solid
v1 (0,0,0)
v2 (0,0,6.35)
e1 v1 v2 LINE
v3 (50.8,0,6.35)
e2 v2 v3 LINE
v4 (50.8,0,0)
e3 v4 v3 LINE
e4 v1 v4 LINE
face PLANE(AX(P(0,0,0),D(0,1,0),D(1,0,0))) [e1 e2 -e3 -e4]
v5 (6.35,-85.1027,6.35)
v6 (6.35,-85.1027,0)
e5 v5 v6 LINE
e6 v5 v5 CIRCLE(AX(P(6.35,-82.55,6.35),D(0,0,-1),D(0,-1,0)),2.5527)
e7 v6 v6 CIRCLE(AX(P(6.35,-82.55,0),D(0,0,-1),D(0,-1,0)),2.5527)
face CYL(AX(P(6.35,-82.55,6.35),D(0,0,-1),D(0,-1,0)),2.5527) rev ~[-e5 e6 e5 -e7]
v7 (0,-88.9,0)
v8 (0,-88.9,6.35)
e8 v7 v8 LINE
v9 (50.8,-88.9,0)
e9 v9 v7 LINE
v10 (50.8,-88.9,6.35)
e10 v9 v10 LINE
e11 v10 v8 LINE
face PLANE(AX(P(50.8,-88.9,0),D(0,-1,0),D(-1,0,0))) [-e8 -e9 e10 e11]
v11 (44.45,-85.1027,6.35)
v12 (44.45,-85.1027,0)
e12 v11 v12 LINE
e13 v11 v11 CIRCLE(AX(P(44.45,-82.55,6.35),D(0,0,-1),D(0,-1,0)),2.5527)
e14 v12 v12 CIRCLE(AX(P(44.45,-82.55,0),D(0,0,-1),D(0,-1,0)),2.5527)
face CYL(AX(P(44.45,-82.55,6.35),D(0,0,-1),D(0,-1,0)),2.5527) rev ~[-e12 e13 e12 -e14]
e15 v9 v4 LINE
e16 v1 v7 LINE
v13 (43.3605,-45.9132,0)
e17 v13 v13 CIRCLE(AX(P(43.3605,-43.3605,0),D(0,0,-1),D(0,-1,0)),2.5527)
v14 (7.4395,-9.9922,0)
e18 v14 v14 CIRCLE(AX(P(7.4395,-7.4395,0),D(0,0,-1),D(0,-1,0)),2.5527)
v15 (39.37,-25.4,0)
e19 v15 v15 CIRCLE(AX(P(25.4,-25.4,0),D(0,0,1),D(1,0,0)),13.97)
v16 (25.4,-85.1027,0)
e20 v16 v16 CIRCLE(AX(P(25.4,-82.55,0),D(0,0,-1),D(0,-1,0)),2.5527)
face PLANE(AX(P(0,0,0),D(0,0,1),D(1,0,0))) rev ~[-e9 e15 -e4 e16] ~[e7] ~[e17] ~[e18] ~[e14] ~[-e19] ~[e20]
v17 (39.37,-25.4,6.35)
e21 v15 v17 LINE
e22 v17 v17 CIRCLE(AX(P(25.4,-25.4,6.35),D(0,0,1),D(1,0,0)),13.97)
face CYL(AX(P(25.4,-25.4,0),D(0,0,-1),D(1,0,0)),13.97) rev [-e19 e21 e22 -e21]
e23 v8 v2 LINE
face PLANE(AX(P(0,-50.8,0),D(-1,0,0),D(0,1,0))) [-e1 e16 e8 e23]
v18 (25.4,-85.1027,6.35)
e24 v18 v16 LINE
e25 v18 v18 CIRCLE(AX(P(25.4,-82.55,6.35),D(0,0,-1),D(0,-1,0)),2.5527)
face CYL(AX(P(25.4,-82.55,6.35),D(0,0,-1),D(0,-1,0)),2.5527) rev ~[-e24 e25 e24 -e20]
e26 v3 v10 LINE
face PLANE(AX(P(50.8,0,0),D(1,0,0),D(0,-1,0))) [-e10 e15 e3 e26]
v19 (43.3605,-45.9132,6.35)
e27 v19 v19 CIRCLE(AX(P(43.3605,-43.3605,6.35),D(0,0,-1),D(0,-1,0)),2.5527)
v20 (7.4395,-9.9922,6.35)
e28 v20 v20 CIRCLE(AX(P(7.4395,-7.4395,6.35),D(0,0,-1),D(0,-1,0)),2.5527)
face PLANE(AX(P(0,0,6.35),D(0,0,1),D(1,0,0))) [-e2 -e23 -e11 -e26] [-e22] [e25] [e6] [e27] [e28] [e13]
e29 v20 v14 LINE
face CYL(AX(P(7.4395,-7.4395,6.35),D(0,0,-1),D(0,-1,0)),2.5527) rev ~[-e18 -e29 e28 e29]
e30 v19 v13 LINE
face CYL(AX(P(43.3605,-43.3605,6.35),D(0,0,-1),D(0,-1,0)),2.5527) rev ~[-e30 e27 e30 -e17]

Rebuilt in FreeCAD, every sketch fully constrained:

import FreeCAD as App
import Part
import Sketcher

V = App.Vector
Q = App.Units.Quantity

doc = App.newDocument("Part")
body = doc.addObject("PartDesign::Body", "Body")

sketch1 = body.newObject("Sketcher::SketchObject", "Sketch")
sketch1.AttachmentSupport = (doc.getObject("XY_Plane"), [""])
sketch1.MapMode = "FlatFace"
sketch1.addGeometry(Part.LineSegment(V(51, 0, 0), V(0, 0, 0)), False)
sketch1.addGeometry(Part.LineSegment(V(0, 0, 0), V(0, -89, 0)), False)
sketch1.addGeometry(Part.LineSegment(V(0, -89, 0), V(51, -89, 0)), False)
sketch1.addGeometry(Part.LineSegment(V(51, -89, 0), V(51, 0, 0)), False)
sketch1.addGeometry(Part.Circle(V(25, -25, 0), V(0, 0, 1), 14), False)
sketch1.addConstraint(Sketcher.Constraint("Coincident", 0, 2, 1, 1))
sketch1.addConstraint(Sketcher.Constraint("Coincident", 1, 2, 2, 1))
sketch1.addConstraint(Sketcher.Constraint("Coincident", 2, 2, 3, 1))
sketch1.addConstraint(Sketcher.Constraint("Coincident", 3, 2, 0, 1))
sketch1.addConstraint(Sketcher.Constraint("Horizontal", 0))
sketch1.addConstraint(Sketcher.Constraint("Vertical", 1))
sketch1.addConstraint(Sketcher.Constraint("Horizontal", 2))
sketch1.addConstraint(Sketcher.Constraint("Vertical", 3))
sketch1.addConstraint(Sketcher.Constraint("Coincident", 0, 2, -1, 1))
sketch1.addConstraint(Sketcher.Constraint("Diameter", 4, Q("1.1 in")))
sketch1.addConstraint(Sketcher.Constraint("DistanceX", 0, 2, 0, 1, Q("2 in")))
sketch1.addConstraint(Sketcher.Constraint("DistanceY", 1, 2, 1, 1, Q("3.5 in")))
sketch1.addConstraint(Sketcher.Constraint("DistanceX", -1, 1, 4, 3, Q("1 in")))
sketch1.addConstraint(Sketcher.Constraint("DistanceY", 4, 3, -1, 1, Q("1 in")))
pad1 = body.newObject("PartDesign::Pad", "Pad")
pad1.Profile = sketch1
pad1.Length = Q("0.25 in")

sketch2 = body.newObject("Sketcher::SketchObject", "Sketch001")
sketch2.AttachmentSupport = (doc.getObject("XY_Plane"), [""])
sketch2.MapMode = "FlatFace"
sketch2.AttachmentOffset = App.Placement(V(0, 0, 0.25 * 25.4), App.Rotation())
sketch2.addGeometry(Part.Circle(V(7.4, -7.4, 0), V(0, 0, 1), 2.6), False)
sketch2.addGeometry(Part.Circle(V(43.4, -43.4, 0), V(0, 0, 1), 2.6), False)
sketch2.addConstraint(Sketcher.Constraint("Equal", 0, 1))
sketch2.addConstraint(Sketcher.Constraint("Diameter", 0, Q("0.201 in")))
sketch2.addConstraint(Sketcher.Constraint("DistanceX", -1, 1, 0, 3, Q("0.2929 in")))
sketch2.addConstraint(Sketcher.Constraint("DistanceY", 0, 3, -1, 1, Q("0.2929 in")))
sketch2.addConstraint(Sketcher.Constraint("DistanceX", -1, 1, 1, 3, Q("1.7071 in")))
sketch2.addConstraint(Sketcher.Constraint("DistanceY", 1, 3, -1, 1, Q("1.7071 in")))
doc.recompute()
hole = body.newObject("PartDesign::Hole", "Hole")
hole.Profile = sketch2
hole.ThreadType = "None"
hole.Diameter = Q("0.201 in")
hole.DepthType = "Dimension"
hole.Depth = Q("0.425 in")
hole.DrillPoint = "Flat"

sketch3 = body.newObject("Sketcher::SketchObject", "Sketch002")
sketch3.AttachmentSupport = (doc.getObject("XY_Plane"), [""])
sketch3.MapMode = "FlatFace"
sketch3.AttachmentOffset = App.Placement(V(0, 0, 0.25 * 25.4), App.Rotation())
sketch3.addGeometry(Part.Circle(V(25.4, -82.5, 0), V(0, 0, 1), 2.6), False)
sketch3.addGeometry(Part.Circle(V(6.3, -82.5, 0), V(0, 0, 1), 2.6), False)
sketch3.addGeometry(Part.Circle(V(44.5, -82.5, 0), V(0, 0, 1), 2.6), False)
sketch3.addConstraint(Sketcher.Constraint("Equal", 0, 1))
sketch3.addConstraint(Sketcher.Constraint("Equal", 1, 2))
sketch3.addConstraint(Sketcher.Constraint("Horizontal", 0, 3, 1, 3))
sketch3.addConstraint(Sketcher.Constraint("Horizontal", 1, 3, 2, 3))
sketch3.addConstraint(Sketcher.Constraint("Diameter", 0, Q("0.201 in")))
sketch3.addConstraint(Sketcher.Constraint("DistanceX", -1, 1, 0, 3, Q("1 in")))
sketch3.addConstraint(Sketcher.Constraint("DistanceX", 1, 3, 2, 3, Q("1.5 in")))
sketch3.addConstraint(Sketcher.Constraint("DistanceY", 0, 3, -1, 1, Q("3.25 in")))
sketch3.addConstraint(Sketcher.Constraint("DistanceX", -1, 1, 1, 3, Q("0.25 in")))
doc.recompute()
hole2 = body.newObject("PartDesign::Hole", "Hole001")
hole2.Profile = sketch3
hole2.ThreadType = "None"
hole2.Diameter = Q("0.201 in")
hole2.DepthType = "Dimension"
hole2.Depth = Q("0.425 in")
hole2.DrillPoint = "Flat"

doc.recompute()
